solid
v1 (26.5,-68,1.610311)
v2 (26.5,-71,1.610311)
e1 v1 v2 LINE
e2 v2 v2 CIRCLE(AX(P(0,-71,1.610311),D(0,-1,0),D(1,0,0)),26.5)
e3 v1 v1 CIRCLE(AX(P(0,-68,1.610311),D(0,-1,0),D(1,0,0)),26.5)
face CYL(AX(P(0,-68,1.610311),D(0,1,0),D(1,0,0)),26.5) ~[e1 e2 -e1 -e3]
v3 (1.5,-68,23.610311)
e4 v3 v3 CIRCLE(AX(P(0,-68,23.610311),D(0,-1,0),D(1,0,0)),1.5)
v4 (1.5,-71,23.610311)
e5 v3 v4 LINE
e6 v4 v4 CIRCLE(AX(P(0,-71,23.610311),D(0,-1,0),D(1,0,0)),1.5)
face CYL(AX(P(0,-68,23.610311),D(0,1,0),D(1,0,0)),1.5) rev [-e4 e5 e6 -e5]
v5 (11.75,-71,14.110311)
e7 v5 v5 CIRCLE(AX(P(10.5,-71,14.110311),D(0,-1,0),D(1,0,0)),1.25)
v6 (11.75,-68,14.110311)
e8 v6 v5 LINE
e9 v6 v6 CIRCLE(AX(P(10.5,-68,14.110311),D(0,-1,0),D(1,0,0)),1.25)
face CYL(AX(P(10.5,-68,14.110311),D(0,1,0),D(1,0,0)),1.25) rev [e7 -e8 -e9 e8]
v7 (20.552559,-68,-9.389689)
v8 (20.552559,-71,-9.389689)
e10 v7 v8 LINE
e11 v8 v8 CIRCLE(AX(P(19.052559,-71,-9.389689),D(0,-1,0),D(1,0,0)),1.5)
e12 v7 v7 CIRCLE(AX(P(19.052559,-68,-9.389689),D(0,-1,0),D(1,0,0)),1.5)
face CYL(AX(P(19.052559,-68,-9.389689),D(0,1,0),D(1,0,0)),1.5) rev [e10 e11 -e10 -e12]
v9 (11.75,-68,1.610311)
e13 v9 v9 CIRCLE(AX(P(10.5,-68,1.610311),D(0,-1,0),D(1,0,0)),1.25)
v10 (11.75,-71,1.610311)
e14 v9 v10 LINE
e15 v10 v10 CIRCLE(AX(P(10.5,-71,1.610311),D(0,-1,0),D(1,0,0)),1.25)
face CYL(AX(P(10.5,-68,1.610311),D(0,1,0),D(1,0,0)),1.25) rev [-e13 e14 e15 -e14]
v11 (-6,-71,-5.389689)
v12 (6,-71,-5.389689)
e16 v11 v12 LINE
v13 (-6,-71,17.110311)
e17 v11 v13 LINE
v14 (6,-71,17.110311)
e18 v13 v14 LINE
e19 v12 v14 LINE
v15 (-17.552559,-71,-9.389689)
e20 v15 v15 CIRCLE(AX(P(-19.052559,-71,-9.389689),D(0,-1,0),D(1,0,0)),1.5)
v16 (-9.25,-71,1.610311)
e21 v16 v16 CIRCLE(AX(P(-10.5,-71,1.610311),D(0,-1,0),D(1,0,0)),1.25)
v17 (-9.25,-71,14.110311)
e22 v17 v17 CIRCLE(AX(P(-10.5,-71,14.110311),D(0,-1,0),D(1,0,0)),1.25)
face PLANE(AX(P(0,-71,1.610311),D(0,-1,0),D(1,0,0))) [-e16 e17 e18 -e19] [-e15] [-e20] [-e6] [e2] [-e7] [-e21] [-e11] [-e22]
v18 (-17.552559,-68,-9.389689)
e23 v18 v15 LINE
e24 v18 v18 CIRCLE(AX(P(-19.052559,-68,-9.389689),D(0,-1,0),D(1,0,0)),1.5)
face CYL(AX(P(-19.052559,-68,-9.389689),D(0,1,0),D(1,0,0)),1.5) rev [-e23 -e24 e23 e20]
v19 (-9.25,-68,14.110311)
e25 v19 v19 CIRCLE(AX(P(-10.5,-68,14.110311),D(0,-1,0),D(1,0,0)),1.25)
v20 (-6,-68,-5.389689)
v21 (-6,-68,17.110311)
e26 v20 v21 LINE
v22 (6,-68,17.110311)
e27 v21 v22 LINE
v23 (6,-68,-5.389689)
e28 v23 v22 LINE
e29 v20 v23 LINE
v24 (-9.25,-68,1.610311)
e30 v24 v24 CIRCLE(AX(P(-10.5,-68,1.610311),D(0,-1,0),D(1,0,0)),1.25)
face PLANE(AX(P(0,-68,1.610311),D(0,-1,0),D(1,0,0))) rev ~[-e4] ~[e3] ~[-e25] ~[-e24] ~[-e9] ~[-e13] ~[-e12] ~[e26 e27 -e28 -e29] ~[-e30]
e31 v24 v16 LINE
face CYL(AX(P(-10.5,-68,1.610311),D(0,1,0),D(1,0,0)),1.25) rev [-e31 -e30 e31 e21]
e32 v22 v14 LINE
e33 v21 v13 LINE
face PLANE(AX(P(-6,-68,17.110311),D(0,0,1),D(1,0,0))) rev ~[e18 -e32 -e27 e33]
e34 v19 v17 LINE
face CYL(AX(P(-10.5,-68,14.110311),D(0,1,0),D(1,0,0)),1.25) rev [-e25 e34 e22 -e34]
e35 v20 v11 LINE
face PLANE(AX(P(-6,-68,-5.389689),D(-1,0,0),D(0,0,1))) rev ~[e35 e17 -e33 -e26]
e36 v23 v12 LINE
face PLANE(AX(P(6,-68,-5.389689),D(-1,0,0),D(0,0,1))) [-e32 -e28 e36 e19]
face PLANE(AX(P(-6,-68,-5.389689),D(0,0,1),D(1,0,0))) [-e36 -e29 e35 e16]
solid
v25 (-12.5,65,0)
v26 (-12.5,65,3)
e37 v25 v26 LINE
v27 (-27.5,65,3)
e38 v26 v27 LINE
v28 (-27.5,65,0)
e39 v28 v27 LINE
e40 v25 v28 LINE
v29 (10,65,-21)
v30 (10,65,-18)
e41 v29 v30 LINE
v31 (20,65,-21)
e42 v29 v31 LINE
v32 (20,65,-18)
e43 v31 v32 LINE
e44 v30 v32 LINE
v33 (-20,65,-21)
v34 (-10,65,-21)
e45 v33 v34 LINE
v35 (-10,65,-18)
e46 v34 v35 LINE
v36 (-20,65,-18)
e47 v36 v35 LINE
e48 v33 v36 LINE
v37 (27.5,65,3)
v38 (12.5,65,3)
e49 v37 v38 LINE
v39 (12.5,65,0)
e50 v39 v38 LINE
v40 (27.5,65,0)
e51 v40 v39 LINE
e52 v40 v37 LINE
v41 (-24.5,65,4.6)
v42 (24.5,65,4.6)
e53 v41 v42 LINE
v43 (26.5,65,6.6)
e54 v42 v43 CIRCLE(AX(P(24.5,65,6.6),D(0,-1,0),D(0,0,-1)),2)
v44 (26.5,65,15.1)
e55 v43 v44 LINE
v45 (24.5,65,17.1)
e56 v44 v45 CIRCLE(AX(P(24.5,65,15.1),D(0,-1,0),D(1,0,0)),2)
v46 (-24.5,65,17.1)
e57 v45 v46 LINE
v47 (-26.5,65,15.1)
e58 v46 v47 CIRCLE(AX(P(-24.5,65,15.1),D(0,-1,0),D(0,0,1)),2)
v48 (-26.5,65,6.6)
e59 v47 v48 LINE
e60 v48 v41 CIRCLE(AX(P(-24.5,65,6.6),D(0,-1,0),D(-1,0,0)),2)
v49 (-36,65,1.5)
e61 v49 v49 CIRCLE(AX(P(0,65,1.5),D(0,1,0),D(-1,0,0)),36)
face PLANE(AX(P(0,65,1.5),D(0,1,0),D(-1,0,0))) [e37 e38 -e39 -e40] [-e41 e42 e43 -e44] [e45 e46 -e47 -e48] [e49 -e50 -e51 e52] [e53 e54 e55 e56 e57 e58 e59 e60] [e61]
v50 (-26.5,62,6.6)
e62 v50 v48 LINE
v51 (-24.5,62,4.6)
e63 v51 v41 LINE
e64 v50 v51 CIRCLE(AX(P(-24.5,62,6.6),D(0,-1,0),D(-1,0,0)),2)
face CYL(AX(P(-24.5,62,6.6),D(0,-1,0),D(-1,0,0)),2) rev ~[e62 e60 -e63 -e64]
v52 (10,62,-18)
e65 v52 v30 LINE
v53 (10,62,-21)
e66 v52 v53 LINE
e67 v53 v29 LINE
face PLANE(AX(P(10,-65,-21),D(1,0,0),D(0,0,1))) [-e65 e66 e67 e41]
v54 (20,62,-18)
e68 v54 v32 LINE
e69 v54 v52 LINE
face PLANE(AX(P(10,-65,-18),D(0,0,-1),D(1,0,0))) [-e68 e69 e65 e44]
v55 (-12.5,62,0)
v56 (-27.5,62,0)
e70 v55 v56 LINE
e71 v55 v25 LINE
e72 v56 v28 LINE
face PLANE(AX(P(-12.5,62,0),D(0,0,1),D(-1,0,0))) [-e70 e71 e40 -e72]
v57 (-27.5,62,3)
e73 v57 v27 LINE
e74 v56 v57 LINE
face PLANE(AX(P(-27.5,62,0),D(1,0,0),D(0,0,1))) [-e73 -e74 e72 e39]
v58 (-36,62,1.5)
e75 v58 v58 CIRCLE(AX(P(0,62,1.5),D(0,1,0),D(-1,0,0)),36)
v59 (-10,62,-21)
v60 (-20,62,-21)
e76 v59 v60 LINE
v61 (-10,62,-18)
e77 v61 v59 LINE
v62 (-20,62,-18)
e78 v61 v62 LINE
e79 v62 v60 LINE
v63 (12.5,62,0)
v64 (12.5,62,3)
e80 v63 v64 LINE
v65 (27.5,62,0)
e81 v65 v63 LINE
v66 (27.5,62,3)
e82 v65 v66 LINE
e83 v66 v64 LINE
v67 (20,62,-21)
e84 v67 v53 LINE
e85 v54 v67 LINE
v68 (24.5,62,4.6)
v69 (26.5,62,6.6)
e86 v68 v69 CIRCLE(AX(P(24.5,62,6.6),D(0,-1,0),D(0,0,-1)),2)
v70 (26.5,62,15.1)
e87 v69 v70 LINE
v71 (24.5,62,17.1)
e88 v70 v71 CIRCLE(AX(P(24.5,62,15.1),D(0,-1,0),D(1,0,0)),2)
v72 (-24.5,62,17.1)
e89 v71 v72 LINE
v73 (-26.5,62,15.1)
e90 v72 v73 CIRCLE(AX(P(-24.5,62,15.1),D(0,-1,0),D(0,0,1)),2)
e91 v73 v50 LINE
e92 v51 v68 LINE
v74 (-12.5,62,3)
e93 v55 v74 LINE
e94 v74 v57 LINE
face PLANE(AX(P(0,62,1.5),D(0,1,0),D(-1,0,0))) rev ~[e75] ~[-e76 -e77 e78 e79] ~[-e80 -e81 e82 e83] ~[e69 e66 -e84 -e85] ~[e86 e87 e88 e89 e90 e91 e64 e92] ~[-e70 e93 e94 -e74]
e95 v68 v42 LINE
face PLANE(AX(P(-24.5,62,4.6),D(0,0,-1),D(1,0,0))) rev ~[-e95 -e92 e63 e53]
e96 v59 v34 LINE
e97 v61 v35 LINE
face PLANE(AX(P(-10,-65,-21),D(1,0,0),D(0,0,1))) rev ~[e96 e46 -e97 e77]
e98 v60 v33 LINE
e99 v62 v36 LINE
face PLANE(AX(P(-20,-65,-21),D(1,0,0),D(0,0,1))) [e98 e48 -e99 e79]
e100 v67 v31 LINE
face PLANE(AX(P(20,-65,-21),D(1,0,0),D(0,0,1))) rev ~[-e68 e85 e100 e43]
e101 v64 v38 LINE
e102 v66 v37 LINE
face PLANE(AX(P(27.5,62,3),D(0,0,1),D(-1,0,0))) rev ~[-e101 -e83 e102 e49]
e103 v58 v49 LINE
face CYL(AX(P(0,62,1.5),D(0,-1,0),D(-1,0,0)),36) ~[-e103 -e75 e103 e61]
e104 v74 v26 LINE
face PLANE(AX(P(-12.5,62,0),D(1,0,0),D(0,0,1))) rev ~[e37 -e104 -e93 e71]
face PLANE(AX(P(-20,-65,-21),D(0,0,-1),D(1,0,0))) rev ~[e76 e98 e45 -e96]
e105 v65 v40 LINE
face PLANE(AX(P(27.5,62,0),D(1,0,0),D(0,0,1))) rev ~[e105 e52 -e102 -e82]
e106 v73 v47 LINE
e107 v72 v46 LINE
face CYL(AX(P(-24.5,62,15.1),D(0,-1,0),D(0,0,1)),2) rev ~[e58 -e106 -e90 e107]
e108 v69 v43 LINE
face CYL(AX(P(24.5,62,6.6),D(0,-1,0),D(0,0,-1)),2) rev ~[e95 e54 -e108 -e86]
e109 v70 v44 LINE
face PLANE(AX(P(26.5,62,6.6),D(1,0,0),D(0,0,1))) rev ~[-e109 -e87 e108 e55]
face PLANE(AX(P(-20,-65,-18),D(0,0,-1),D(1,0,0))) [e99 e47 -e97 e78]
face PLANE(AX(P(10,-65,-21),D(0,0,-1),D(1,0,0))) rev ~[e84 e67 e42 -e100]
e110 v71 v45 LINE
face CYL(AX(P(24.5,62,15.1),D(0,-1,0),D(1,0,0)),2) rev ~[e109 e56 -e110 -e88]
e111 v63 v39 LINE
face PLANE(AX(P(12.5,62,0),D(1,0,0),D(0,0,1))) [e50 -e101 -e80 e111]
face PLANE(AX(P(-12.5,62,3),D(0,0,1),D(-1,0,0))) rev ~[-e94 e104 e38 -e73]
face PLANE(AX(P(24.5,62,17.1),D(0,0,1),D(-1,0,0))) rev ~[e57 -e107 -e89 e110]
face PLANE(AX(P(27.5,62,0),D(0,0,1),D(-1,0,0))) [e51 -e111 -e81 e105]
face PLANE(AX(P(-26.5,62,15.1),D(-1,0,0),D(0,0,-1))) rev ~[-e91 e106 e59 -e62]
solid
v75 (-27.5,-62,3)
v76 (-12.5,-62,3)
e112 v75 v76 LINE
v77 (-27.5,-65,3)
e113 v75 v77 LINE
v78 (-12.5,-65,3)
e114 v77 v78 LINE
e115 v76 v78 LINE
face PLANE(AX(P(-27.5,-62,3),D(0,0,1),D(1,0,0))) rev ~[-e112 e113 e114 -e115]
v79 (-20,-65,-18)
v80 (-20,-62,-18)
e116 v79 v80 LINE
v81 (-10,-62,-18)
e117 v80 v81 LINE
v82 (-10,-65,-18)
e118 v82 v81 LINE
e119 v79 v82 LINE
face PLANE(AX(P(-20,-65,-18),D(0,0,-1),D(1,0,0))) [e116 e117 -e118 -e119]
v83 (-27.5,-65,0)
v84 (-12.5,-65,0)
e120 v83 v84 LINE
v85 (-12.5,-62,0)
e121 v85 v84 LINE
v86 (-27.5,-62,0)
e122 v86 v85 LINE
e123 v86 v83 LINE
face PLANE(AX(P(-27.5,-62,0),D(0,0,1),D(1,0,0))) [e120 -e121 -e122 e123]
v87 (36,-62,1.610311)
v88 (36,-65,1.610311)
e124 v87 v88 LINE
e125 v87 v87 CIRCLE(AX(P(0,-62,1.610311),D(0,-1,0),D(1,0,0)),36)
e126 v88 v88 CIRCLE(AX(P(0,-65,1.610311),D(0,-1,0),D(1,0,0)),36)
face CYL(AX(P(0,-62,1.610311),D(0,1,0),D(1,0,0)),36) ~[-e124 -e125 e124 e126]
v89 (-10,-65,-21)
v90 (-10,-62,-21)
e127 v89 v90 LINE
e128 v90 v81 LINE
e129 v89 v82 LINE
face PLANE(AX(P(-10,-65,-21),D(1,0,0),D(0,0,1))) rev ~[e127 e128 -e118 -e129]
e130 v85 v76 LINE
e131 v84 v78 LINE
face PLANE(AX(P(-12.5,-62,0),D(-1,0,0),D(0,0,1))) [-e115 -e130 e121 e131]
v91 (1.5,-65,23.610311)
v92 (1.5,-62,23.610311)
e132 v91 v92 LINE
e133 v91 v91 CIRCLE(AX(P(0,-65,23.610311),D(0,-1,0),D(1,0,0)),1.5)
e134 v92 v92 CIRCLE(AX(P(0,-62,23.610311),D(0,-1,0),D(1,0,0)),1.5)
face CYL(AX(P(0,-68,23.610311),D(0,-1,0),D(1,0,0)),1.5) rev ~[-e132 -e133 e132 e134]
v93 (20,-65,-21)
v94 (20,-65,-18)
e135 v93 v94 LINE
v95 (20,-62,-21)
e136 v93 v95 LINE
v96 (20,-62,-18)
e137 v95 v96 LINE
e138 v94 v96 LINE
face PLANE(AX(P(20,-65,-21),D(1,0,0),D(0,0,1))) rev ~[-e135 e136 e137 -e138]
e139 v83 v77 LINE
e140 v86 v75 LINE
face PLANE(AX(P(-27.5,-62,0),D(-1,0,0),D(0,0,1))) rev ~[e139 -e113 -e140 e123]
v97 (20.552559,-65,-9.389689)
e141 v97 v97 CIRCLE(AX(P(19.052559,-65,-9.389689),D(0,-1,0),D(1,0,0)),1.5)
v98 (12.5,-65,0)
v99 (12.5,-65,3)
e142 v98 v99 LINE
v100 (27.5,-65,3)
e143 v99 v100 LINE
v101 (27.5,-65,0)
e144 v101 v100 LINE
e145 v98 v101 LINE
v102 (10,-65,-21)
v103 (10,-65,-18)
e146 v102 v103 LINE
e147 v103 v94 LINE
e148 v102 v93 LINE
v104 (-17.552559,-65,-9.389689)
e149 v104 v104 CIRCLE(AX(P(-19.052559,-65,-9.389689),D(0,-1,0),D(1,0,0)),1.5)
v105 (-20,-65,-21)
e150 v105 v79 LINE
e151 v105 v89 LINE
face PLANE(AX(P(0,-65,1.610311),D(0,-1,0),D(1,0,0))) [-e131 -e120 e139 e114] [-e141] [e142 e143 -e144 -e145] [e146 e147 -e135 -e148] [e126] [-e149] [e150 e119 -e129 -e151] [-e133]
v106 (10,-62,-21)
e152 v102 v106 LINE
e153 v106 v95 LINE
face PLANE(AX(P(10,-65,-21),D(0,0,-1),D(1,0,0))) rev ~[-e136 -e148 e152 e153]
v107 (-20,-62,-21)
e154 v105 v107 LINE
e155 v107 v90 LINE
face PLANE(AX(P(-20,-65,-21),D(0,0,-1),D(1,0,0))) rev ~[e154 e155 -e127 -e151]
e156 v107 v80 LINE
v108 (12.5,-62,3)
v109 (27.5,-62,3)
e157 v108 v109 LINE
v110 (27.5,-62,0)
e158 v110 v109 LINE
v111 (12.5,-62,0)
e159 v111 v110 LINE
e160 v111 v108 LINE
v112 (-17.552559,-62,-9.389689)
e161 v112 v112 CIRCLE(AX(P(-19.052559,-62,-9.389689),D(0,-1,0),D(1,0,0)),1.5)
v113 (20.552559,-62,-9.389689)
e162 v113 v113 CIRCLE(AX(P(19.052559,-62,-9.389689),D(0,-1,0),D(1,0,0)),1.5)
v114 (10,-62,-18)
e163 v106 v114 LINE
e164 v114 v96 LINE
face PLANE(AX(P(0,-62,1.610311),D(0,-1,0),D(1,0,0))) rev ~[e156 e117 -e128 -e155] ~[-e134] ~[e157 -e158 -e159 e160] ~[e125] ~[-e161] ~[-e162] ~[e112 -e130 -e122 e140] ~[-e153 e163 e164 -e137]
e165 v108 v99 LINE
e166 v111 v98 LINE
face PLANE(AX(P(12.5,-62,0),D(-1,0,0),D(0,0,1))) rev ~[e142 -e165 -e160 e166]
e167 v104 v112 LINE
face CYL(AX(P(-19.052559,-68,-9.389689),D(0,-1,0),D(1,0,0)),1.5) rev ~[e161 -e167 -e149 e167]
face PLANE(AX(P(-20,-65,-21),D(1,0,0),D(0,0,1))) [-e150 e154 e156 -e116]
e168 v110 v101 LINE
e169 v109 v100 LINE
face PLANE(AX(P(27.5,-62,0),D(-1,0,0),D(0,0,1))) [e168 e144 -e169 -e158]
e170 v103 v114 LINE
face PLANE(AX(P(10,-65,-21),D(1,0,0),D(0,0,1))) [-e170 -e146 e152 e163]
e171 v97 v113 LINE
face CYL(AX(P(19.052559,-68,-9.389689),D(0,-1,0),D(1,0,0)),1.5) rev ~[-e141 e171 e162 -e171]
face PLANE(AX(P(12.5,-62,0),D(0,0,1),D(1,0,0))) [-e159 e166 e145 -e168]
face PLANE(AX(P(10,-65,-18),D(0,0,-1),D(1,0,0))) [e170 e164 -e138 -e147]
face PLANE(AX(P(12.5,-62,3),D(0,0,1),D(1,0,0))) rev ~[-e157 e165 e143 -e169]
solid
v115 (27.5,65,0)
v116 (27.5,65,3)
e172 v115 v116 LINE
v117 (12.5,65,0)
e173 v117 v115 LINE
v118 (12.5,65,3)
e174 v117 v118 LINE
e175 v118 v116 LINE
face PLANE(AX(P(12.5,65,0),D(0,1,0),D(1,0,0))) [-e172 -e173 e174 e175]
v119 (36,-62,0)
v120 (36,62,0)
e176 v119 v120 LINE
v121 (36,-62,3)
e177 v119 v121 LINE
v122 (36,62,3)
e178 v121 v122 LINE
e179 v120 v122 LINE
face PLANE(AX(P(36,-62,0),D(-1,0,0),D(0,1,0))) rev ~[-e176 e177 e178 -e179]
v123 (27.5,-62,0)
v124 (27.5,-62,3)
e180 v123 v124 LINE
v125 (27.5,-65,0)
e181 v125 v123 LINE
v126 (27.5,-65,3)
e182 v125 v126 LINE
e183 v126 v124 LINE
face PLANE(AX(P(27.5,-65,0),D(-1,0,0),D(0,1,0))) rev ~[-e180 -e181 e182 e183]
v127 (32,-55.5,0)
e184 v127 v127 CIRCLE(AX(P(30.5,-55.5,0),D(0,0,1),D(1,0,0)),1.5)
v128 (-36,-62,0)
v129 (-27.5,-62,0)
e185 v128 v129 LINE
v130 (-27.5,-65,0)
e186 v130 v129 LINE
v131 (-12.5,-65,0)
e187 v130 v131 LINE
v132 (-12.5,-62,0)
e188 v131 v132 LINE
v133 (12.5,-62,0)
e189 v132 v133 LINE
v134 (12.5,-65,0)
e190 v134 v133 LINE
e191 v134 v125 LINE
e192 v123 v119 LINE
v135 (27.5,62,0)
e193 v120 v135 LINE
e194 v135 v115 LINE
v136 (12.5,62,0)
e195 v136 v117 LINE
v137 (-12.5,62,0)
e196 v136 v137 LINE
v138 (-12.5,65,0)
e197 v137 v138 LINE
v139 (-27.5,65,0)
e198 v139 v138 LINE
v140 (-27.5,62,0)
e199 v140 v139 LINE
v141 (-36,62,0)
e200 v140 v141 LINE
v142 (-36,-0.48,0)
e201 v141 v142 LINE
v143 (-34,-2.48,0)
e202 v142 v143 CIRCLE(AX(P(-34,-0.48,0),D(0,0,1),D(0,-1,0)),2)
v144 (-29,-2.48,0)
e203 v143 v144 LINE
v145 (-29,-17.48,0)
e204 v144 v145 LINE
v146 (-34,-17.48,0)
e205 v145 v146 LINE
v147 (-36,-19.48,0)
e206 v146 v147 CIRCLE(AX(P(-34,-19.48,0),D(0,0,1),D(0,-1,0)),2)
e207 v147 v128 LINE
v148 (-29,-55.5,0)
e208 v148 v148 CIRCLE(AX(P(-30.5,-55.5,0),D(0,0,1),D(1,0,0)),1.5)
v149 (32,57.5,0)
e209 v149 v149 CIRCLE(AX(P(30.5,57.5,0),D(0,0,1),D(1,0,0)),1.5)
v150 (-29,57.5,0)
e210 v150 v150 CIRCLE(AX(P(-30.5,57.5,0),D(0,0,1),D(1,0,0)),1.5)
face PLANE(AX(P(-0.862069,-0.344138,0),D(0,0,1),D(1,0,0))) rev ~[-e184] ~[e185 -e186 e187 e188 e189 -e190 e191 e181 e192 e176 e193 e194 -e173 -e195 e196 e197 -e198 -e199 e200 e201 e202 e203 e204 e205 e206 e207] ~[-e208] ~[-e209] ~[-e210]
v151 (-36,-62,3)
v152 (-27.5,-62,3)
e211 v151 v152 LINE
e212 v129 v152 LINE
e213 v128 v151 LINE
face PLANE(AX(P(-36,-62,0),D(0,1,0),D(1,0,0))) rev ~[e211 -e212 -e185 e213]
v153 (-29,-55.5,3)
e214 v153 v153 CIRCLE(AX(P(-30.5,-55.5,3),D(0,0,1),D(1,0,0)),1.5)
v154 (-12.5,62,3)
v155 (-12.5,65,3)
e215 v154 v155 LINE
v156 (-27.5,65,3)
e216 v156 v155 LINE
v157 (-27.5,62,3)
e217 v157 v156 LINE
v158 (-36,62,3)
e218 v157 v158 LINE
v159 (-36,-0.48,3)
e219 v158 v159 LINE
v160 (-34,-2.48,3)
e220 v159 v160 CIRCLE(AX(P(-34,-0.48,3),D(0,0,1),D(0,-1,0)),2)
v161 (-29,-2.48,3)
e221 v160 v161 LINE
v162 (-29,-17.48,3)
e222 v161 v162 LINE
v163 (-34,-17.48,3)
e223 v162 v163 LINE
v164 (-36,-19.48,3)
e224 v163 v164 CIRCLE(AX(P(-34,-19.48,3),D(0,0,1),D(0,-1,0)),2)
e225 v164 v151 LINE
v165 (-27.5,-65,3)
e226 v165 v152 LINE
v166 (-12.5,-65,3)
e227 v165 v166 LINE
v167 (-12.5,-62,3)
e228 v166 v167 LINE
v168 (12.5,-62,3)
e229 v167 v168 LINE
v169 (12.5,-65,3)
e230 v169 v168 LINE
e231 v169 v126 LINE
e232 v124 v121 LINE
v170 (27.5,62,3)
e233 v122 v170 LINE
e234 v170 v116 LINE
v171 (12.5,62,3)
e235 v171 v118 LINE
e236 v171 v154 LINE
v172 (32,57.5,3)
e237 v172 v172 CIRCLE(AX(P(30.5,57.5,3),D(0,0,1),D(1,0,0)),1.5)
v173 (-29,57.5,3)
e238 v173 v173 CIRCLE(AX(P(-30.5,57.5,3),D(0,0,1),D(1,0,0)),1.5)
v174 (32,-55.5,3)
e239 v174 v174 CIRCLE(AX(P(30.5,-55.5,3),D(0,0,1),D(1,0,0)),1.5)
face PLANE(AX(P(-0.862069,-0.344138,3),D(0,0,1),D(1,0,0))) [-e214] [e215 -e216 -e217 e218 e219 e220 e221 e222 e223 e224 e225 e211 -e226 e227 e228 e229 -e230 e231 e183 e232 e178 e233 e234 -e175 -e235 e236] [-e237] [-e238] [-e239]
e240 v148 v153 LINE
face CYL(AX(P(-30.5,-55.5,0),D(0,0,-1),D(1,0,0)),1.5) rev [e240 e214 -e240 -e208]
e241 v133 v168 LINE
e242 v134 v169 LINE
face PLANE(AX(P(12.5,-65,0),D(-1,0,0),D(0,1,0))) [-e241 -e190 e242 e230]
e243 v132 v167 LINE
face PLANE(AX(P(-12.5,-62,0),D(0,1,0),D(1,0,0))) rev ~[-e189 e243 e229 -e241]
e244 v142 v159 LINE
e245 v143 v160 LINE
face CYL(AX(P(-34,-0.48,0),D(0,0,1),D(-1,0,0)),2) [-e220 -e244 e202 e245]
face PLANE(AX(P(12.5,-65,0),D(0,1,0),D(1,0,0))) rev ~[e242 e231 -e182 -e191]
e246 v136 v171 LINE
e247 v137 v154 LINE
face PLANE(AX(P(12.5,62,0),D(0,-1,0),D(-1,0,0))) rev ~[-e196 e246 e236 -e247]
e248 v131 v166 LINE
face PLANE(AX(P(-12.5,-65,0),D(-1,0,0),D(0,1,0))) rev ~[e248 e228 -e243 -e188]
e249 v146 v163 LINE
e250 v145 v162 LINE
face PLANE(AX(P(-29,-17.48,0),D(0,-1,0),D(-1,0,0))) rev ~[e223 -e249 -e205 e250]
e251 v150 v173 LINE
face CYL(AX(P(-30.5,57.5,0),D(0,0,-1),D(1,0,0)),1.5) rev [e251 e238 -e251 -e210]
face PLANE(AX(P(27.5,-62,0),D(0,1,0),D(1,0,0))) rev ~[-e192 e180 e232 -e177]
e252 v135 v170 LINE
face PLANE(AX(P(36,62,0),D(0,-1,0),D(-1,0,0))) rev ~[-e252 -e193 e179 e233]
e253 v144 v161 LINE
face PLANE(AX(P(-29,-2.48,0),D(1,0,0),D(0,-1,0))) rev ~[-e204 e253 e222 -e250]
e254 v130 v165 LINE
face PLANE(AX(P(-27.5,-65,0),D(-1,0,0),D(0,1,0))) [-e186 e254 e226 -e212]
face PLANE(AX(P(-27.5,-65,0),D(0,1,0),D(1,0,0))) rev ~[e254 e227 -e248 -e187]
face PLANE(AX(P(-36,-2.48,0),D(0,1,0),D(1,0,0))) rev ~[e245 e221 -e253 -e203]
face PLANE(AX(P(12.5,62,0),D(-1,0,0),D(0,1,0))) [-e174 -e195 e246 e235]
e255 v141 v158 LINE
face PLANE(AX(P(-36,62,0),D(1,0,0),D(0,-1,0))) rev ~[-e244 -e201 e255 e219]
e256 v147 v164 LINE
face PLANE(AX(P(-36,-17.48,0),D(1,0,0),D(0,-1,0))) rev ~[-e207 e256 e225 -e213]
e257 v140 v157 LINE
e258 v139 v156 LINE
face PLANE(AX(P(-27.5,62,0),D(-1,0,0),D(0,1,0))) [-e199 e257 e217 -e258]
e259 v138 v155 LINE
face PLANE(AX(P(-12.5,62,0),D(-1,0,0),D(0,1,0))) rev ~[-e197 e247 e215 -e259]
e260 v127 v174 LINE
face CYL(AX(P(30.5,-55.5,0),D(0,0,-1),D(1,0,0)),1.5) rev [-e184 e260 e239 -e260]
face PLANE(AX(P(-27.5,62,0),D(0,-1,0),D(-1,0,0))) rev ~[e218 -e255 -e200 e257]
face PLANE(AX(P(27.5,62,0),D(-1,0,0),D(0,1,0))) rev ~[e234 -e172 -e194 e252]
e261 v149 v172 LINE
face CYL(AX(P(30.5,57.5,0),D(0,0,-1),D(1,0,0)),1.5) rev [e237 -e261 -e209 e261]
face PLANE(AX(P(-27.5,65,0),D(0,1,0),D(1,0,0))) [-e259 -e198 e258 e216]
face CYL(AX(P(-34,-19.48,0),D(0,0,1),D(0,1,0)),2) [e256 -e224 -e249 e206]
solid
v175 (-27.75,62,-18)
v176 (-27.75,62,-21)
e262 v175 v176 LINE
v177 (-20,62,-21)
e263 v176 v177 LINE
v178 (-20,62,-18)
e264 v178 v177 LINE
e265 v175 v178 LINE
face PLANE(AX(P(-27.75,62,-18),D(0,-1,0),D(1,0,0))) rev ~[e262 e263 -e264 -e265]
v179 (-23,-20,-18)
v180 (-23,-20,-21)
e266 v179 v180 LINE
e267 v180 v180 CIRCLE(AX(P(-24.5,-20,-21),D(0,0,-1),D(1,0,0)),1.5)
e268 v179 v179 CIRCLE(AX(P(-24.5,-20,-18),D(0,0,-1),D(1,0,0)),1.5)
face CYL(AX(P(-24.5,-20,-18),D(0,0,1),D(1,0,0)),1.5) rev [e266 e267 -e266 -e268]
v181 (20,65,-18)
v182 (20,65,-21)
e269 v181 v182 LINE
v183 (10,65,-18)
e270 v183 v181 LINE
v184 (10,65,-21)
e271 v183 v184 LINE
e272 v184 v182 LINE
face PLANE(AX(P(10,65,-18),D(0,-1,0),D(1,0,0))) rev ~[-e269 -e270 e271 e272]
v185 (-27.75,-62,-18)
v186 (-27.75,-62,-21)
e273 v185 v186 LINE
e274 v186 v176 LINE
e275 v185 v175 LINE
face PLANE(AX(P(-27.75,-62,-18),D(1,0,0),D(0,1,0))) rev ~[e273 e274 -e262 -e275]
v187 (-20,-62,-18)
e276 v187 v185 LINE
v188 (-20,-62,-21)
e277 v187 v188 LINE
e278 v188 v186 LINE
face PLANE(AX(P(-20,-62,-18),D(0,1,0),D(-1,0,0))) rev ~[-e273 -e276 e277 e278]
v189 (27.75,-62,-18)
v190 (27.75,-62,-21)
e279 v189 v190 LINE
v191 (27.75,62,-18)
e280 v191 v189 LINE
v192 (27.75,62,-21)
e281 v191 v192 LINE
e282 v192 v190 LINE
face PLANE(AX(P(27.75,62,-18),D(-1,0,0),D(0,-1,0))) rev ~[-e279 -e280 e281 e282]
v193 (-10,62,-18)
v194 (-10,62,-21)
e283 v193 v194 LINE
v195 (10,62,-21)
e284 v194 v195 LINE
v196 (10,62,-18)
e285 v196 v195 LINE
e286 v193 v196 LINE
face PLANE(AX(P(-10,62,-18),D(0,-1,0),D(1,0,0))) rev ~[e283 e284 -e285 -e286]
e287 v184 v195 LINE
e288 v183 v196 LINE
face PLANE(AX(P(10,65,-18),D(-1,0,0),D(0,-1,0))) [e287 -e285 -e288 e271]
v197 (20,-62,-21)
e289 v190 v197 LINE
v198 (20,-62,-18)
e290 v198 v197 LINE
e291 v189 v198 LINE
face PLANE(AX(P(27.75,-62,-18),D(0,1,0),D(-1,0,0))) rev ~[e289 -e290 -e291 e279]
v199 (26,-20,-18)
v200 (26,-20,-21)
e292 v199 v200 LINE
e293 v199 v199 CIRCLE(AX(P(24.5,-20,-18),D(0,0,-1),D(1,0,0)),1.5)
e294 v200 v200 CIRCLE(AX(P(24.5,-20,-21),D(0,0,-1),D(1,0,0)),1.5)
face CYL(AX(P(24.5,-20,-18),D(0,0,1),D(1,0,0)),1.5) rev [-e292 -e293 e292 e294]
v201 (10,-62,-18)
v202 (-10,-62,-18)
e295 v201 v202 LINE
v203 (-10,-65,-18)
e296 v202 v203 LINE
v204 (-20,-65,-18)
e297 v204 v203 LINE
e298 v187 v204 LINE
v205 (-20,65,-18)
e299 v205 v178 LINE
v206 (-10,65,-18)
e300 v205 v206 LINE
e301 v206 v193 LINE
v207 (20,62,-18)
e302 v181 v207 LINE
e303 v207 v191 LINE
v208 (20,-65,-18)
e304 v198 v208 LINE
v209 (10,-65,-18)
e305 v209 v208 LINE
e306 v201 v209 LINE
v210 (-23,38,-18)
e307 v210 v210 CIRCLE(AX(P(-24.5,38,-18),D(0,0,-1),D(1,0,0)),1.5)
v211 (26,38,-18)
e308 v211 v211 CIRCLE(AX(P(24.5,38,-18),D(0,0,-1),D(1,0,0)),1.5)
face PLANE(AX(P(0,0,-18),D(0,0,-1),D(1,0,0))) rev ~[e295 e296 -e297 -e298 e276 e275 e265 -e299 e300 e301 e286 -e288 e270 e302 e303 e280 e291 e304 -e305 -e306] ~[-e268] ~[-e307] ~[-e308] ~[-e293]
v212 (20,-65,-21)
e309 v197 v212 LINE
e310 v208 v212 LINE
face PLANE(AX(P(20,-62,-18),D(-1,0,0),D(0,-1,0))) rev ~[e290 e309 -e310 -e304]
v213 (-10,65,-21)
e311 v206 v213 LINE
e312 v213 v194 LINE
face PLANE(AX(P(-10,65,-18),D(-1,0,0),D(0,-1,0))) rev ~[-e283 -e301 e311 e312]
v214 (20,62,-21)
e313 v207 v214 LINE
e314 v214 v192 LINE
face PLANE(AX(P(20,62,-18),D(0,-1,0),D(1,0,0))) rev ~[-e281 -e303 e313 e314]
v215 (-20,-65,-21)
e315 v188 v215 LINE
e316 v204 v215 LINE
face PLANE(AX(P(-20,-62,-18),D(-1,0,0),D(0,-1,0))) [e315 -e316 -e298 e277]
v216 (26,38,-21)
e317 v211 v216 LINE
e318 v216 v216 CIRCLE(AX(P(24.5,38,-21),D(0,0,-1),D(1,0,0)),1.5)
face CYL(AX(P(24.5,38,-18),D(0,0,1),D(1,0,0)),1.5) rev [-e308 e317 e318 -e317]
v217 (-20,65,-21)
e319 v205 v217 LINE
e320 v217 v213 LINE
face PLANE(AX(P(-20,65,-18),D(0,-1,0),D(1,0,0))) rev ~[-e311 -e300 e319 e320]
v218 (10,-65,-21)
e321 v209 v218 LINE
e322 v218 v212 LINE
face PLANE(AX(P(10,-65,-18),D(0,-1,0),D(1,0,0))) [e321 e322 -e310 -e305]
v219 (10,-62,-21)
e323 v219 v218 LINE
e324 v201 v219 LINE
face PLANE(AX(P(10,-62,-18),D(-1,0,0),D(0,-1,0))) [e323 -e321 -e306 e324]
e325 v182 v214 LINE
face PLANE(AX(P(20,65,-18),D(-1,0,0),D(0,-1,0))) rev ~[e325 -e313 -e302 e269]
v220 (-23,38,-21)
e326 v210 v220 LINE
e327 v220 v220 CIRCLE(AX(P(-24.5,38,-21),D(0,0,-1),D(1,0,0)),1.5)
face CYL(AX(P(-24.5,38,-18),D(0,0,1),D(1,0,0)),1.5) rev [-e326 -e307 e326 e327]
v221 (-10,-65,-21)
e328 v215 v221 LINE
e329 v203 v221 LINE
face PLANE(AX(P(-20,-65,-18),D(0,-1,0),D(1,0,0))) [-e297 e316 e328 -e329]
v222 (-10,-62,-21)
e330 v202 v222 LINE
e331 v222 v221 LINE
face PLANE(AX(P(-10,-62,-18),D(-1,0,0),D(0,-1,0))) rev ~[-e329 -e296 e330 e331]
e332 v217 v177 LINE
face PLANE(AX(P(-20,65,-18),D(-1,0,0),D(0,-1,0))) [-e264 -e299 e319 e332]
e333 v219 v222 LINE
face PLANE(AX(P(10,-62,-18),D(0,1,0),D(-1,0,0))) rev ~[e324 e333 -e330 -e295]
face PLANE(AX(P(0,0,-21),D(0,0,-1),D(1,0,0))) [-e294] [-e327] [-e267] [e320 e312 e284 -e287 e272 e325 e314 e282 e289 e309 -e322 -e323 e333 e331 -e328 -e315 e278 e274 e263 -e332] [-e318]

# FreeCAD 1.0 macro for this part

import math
import FreeCAD as App
import Part
import Sketcher

V = App.Vector


def edges_at(feature, points):
    """Names of the edges that pass closest to the given points."""
    edges = feature.Shape.Edges
    near = lambda p: min(range(len(edges)), key=lambda i: edges[i].distToShape(Part.Vertex(*p))[0])
    return sorted({f"Edge{near(p) + 1}" for p in points})


def add_polygon(sketch, points):
    """Adds a closed chain of lines whose ends are joined by coincident constraints."""
    first, n = sketch.GeometryCount, len(points)
    for a, b in zip(points, points[1:] + points[:1]):
        sketch.addGeometry(Part.LineSegment(App.Vector(*a, 0), App.Vector(*b, 0)), False)
    for i in range(n):
        sketch.addConstraint(Sketcher.Constraint("Coincident", first + i, 2, first + (i + 1) % n, 1))

doc = App.newDocument("Part")
params = doc.addObject("Spreadsheet::Sheet", "Params")
for row, (alias, value) in enumerate([
    ("sketch1_diameter", "3 mm"),
    ("sketch1_width", "7 mm"),
    ("sketch1_width2", "15 mm"),
    ("sketch1_width3", "25 mm"),
    ("sketch1_height", "3 mm"),
    ("pad1_length", "3 mm"),
    ("fillet_radius", "2 mm"),
    ("sketch2_diameter", "72 mm"),
    ("sketch2_width", "15 mm"),
    ("sketch2_height", "3 mm"),
    ("pad2_length", "3 mm"),
    ("sketch3_diameter", "72 mm"),
    ("sketch3_radius", "2 mm"),
    ("sketch3_width", "15 mm"),
    ("sketch3_width2", "49 mm"),
    ("sketch3_height", "3 mm"),
    ("pad3_length", "3 mm"),
    ("sketch4_diameter", "3 mm"),
    ("sketch4_width", "10 mm"),
    ("sketch4_width2", "20 mm"),
    ("sketch4_height", "124 mm"),
    ("sketch4_height2", "3 mm"),
    ("pad4_length", "3 mm"),
    ("sketch5_width", "10 mm"),
    ("sketch5_height", "3 mm"),
    ("pad5_length", "130 mm"),
    ("sketch6_diameter", "3 mm"),
    ("pocket1_length", "25 mm"),
    ("sketch7_diameter", "53 mm"),
    ("sketch7_diameter2", "3 mm"),
    ("sketch7_diameter3", "2.5 mm"),
    ("sketch7_width", "12 mm"),
    ("sketch7_height", "22.5 mm"),
    ("pad6_length", "3 mm"),
], start=1):
    params.set(f"A{row}", alias)
    params.set(f"B{row}", "=" + value)
    params.setAlias(f"B{row}", alias)

body = doc.addObject("PartDesign::Body", "Body")

# Sketch on XY plane
sketch1 = body.newObject("Sketcher::SketchObject", "Sketch")
sketch1.AttachmentSupport = (doc.getObject("XY_Plane"), [""])
sketch1.MapMode = "FlatFace"
add_polygon(sketch1, [(-36, 62), (-36, -2.5), (-29, -2.5), (-29, -17.5), (-36, -17.5), (-36, -62), (-27.5, -62), (-27.5, -65), (-12.5, -65), (-12.5, -62), (12.5, -62), (12.5, -65), (27.5, -65), (27.5, -62), (36, -62), (36, 62), (27.5, 62), (27.5, 65), (12.5, 65), (12.5, 62), (-12.5, 62), (-12.5, 65), (-27.5, 65), (-27.5, 62)])  # lines 0-23
sketch1.addGeometry(Part.Circle(V(-30.5, -55.5, 0), V(0, 0, 1), 1.5), False)  # 24
sketch1.addGeometry(Part.Circle(V(30.5, -55.5, 0), V(0, 0, 1), 1.5), False)  # 25
sketch1.addGeometry(Part.Circle(V(-30.5, 57.5, 0), V(0, 0, 1), 1.5), False)  # 26
sketch1.addGeometry(Part.Circle(V(30.5, 57.5, 0), V(0, 0, 1), 1.5), False)  # 27
sketch1.addConstraint(Sketcher.Constraint("Vertical", 0))
sketch1.addConstraint(Sketcher.Constraint("Horizontal", 1))
sketch1.addConstraint(Sketcher.Constraint("Vertical", 2))
sketch1.addConstraint(Sketcher.Constraint("Horizontal", 3))
sketch1.addConstraint(Sketcher.Constraint("Vertical", 4))
sketch1.addConstraint(Sketcher.Constraint("Horizontal", 5))
sketch1.addConstraint(Sketcher.Constraint("Vertical", 6))
sketch1.addConstraint(Sketcher.Constraint("Horizontal", 7))
sketch1.addConstraint(Sketcher.Constraint("Vertical", 8))
sketch1.addConstraint(Sketcher.Constraint("Horizontal", 9))
sketch1.addConstraint(Sketcher.Constraint("Vertical", 10))
sketch1.addConstraint(Sketcher.Constraint("Horizontal", 11))
sketch1.addConstraint(Sketcher.Constraint("Vertical", 12))
sketch1.addConstraint(Sketcher.Constraint("Horizontal", 13))
sketch1.addConstraint(Sketcher.Constraint("Vertical", 14))
sketch1.addConstraint(Sketcher.Constraint("Horizontal", 15))
sketch1.addConstraint(Sketcher.Constraint("Vertical", 16))
sketch1.addConstraint(Sketcher.Constraint("Horizontal", 17))
sketch1.addConstraint(Sketcher.Constraint("Vertical", 18))
sketch1.addConstraint(Sketcher.Constraint("Horizontal", 19))
sketch1.addConstraint(Sketcher.Constraint("Vertical", 20))
sketch1.addConstraint(Sketcher.Constraint("Horizontal", 21))
sketch1.addConstraint(Sketcher.Constraint("Vertical", 22))
sketch1.addConstraint(Sketcher.Constraint("Horizontal", 23))
sketch1.addConstraint(Sketcher.Constraint("Equal", 24, 25))
sketch1.addConstraint(Sketcher.Constraint("Equal", 25, 26))
sketch1.addConstraint(Sketcher.Constraint("Equal", 26, 27))
sketch1.addConstraint(Sketcher.Constraint("Symmetric", 4, 2, 14, 2, -1, 1))
sketch1.addConstraint(Sketcher.Constraint("Symmetric", 6, 2, 16, 2, -1, 1))
sketch1.addConstraint(Sketcher.Constraint("Symmetric", 8, 2, 18, 2, -1, 1))
sketch1.addConstraint(Sketcher.Constraint("Symmetric", 10, 2, 20, 2, -1, 1))
sketch1.addConstraint(Sketcher.Constraint("Symmetric", 12, 2, 22, 2, -1, 1))
sketch1.addConstraint(Sketcher.Constraint("Symmetric", 24, 3, 25, 3, -2))
sketch1.addConstraint(Sketcher.Constraint("Symmetric", 26, 3, 27, 3, -2))
sketch1.addConstraint(Sketcher.Constraint("Symmetric", 7, 2, 10, 2, -2))
sketch1.addConstraint(Sketcher.Constraint("Symmetric", 5, 2, 12, 2, -2))
sketch1.addConstraint(Sketcher.Constraint("Horizontal", 5, 2, 8, 2))
sketch1.addConstraint(Sketcher.Constraint("Vertical", 24, 3, 26, 3))
sketch1.addConstraint(Sketcher.Constraint("Vertical", 0, 2, 3, 2))
sketch1.addConstraint(Sketcher.Constraint("Equal", 21, 2))
sketch1.addConstraint(Sketcher.Constraint("Diameter", 24, 3.0))
sketch1.addConstraint(Sketcher.Constraint("DistanceX", 1, 1, 1, 2, 7.0))
sketch1.addConstraint(Sketcher.Constraint("DistanceX", 7, 1, 7, 2, 15.0))
sketch1.addConstraint(Sketcher.Constraint("DistanceX", 9, 1, 9, 2, 25.0))
sketch1.addConstraint(Sketcher.Constraint("DistanceY", 6, 2, 6, 1, 3.0))
sketch1.addConstraint(Sketcher.Constraint("DistanceY", 14, 1, 14, 2, 124.0))
sketch1.addConstraint(Sketcher.Constraint("DistanceX", 5, 1, 5, 2, 8.5))
sketch1.addConstraint(Sketcher.Constraint("DistanceX", 24, 3, 25, 3, 61.0))
sketch1.addConstraint(Sketcher.Constraint("DistanceY", 24, 3, 26, 3, 113.0))
sketch1.addConstraint(Sketcher.Constraint("DistanceY", 0, 2, 0, 1, 64.48))
sketch1.addConstraint(Sketcher.Constraint("DistanceY", 24, 3, -1, 1, 55.5))
sketch1.setExpression("Constraints[64]", "Params.sketch1_diameter")
sketch1.setExpression("Constraints[65]", "Params.sketch1_width")
sketch1.setExpression("Constraints[66]", "Params.sketch1_width2")
sketch1.setExpression("Constraints[67]", "Params.sketch1_width3")
sketch1.setExpression("Constraints[68]", "Params.sketch1_height")
pad1 = body.newObject("PartDesign::Pad", "Pad")
pad1.Profile = sketch1
pad1.setExpression("Length", "Params.pad1_length")
doc.recompute()

fillet = body.newObject("PartDesign::Fillet", "Fillet")
fillet.Base = (pad1, edges_at(pad1, [(-36, -2.48, 1.5), (-36, -17.48, 1.5)]))
fillet.setExpression("Radius", "Params.fillet_radius")
body2 = doc.addObject("PartDesign::Body", "Body001")

# Sketch on XZ plane
sketch2 = body2.newObject("Sketcher::SketchObject", "Sketch001")
sketch2.AttachmentSupport = (doc.getObject("XZ_Plane001"), [""])
sketch2.MapMode = "FlatFace"
sketch2.AttachmentOffset = App.Placement(V(0, 0, 62), App.Rotation())
sketch2.addGeometry(Part.Circle(V(0, 1.6, 0), V(0, 0, 1), 36), False)  # 0
add_polygon(sketch2, [(-12.5, 0), (-27.5, 0), (-27.5, 3), (-12.5, 3)])  # lines 1-4
add_polygon(sketch2, [(27.5, 0), (12.5, 0), (12.5, 3), (27.5, 3)])  # lines 5-8
sketch2.addConstraint(Sketcher.Constraint("Horizontal", 1))
sketch2.addConstraint(Sketcher.Constraint("Vertical", 2))
sketch2.addConstraint(Sketcher.Constraint("Horizontal", 3))
sketch2.addConstraint(Sketcher.Constraint("Vertical", 4))
sketch2.addConstraint(Sketcher.Constraint("Horizontal", 5))
sketch2.addConstraint(Sketcher.Constraint("Vertical", 6))
sketch2.addConstraint(Sketcher.Constraint("Horizontal", 7))
sketch2.addConstraint(Sketcher.Constraint("Vertical", 8))
sketch2.addConstraint(Sketcher.Constraint("Symmetric", 4, 2, 5, 2, -1, 1))
sketch2.addConstraint(Sketcher.Constraint("Symmetric", 2, 2, 7, 2, -2))
sketch2.addConstraint(Sketcher.Constraint("PointOnObject", 0, 3, -2))
sketch2.addConstraint(Sketcher.Constraint("PointOnObject", 1, 2, -1))
sketch2.addConstraint(Sketcher.Constraint("Diameter", 0, 72.0))
sketch2.addConstraint(Sketcher.Constraint("DistanceX", 1, 2, 1, 1, 15.0))
sketch2.addConstraint(Sketcher.Constraint("DistanceY", 2, 1, 2, 2, 3.0))
sketch2.addConstraint(Sketcher.Constraint("DistanceX", 4, 2, 5, 2, 25.0))
sketch2.addConstraint(Sketcher.Constraint("DistanceY", -1, 1, 0, 3, 1.610311))
sketch2.setExpression("Constraints[20]", "Params.sketch2_diameter")
sketch2.setExpression("Constraints[21]", "Params.sketch2_width")
sketch2.setExpression("Constraints[22]", "Params.sketch2_height")
pad2 = body2.newObject("PartDesign::Pad", "Pad001")
pad2.Profile = sketch2
pad2.setExpression("Length", "Params.pad2_length")
body3 = doc.addObject("PartDesign::Body", "Body002")

# Sketch on XZ plane
sketch3 = body3.newObject("Sketcher::SketchObject", "Sketch002")
sketch3.AttachmentSupport = (doc.getObject("XZ_Plane002"), [""])
sketch3.MapMode = "FlatFace"
sketch3.AttachmentOffset = App.Placement(V(0, 0, -62), App.Rotation())
sketch3.addGeometry(Part.Circle(V(0, 1.5, 0), V(0, 0, 1), 36), False)  # 0
add_polygon(sketch3, [(12.5, 0), (27.5, 0), (27.5, 3), (12.5, 3)])  # lines 1-4
add_polygon(sketch3, [(-27.5, 0), (-12.5, 0), (-12.5, 3), (-27.5, 3)])  # lines 5-8
sketch3.addGeometry(Part.LineSegment(V(26.5, 6.6, 0), V(26.5, 15.1, 0)), False)  # 9
sketch3.addGeometry(Part.ArcOfCircle(Part.Circle(V(24.5, 15.1, 0), V(0, 0, 1), 2), math.radians(0), math.radians(90)), False)  # 10
sketch3.addGeometry(Part.LineSegment(V(24.5, 17.1, 0), V(-24.5, 17.1, 0)), False)  # 11
sketch3.addGeometry(Part.ArcOfCircle(Part.Circle(V(-24.5, 15.1, 0), V(0, 0, 1), 2), math.radians(90), math.radians(180)), False)  # 12
sketch3.addGeometry(Part.LineSegment(V(-26.5, 15.1, 0), V(-26.5, 6.6, 0)), False)  # 13
sketch3.addGeometry(Part.ArcOfCircle(Part.Circle(V(-24.5, 6.6, 0), V(0, 0, 1), 2), math.radians(180), math.radians(270)), False)  # 14
sketch3.addGeometry(Part.LineSegment(V(-24.5, 4.6, 0), V(24.5, 4.6, 0)), False)  # 15
sketch3.addGeometry(Part.ArcOfCircle(Part.Circle(V(24.5, 6.6, 0), V(0, 0, 1), 2), math.radians(-90), math.radians(0)), False)  # 16
sketch3.addConstraint(Sketcher.Constraint("Tangent", 9, 2, 10, 1))
sketch3.addConstraint(Sketcher.Constraint("Tangent", 10, 2, 11, 1))
sketch3.addConstraint(Sketcher.Constraint("Tangent", 11, 2, 12, 1))
sketch3.addConstraint(Sketcher.Constraint("Tangent", 12, 2, 13, 1))
sketch3.addConstraint(Sketcher.Constraint("Tangent", 13, 2, 14, 1))
sketch3.addConstraint(Sketcher.Constraint("Tangent", 14, 2, 15, 1))
sketch3.addConstraint(Sketcher.Constraint("Tangent", 15, 2, 16, 1))
sketch3.addConstraint(Sketcher.Constraint("Tangent", 16, 2, 9, 1))
sketch3.addConstraint(Sketcher.Constraint("Horizontal", 1))
sketch3.addConstraint(Sketcher.Constraint("Vertical", 2))
sketch3.addConstraint(Sketcher.Constraint("Horizontal", 3))
sketch3.addConstraint(Sketcher.Constraint("Vertical", 4))
sketch3.addConstraint(Sketcher.Constraint("Horizontal", 5))
sketch3.addConstraint(Sketcher.Constraint("Vertical", 6))
sketch3.addConstraint(Sketcher.Constraint("Horizontal", 7))
sketch3.addConstraint(Sketcher.Constraint("Vertical", 8))
sketch3.addConstraint(Sketcher.Constraint("Vertical", 9))
sketch3.addConstraint(Sketcher.Constraint("Horizontal", 11))
sketch3.addConstraint(Sketcher.Constraint("Vertical", 13))
sketch3.addConstraint(Sketcher.Constraint("Horizontal", 15))
sketch3.addConstraint(Sketcher.Constraint("Equal", 10, 12))
sketch3.addConstraint(Sketcher.Constraint("Equal", 12, 14))
sketch3.addConstraint(Sketcher.Constraint("Equal", 14, 16))
sketch3.addConstraint(Sketcher.Constraint("Symmetric", 4, 2, 5, 2, -1, 1))
sketch3.addConstraint(Sketcher.Constraint("Symmetric", 2, 2, 7, 2, -2))
sketch3.addConstraint(Sketcher.Constraint("PointOnObject", 0, 3, -2))
sketch3.addConstraint(Sketcher.Constraint("PointOnObject", 1, 2, -1))
sketch3.addConstraint(Sketcher.Constraint("Diameter", 0, 72.0))
sketch3.addConstraint(Sketcher.Constraint("Radius", 10, 2.0))
sketch3.addConstraint(Sketcher.Constraint("DistanceX", 1, 1, 1, 2, 15.0))
sketch3.addConstraint(Sketcher.Constraint("DistanceX", 11, 2, 11, 1, 49.0))
sketch3.addConstraint(Sketcher.Constraint("DistanceY", 2, 1, 2, 2, 3.0))
sketch3.addConstraint(Sketcher.Constraint("DistanceY", 9, 1, 9, 2, 8.5))
sketch3.addConstraint(Sketcher.Constraint("DistanceX", 16, 3, 1, 2, 3.0))
sketch3.addConstraint(Sketcher.Constraint("DistanceX", 14, 3, 5, 2, 12.0))
sketch3.addConstraint(Sketcher.Constraint("DistanceY", -1, 1, 0, 3, 1.5))
sketch3.addConstraint(Sketcher.Constraint("DistanceY", -1, 1, 10, 3, 15.1))
sketch3.setExpression("Constraints[35]", "Params.sketch3_diameter")
sketch3.setExpression("Constraints[36]", "Params.sketch3_radius")
sketch3.setExpression("Constraints[37]", "Params.sketch3_width")
sketch3.setExpression("Constraints[38]", "Params.sketch3_width2")
sketch3.setExpression("Constraints[39]", "Params.sketch3_height")
pad3 = body3.newObject("PartDesign::Pad", "Pad002")
pad3.Profile = sketch3
pad3.setExpression("Length", "Params.pad3_length")
pad3.Reversed = True
body4 = doc.addObject("PartDesign::Body", "Body003")

# Sketch on XY plane
sketch4 = body4.newObject("Sketcher::SketchObject", "Sketch003")
sketch4.AttachmentSupport = (doc.getObject("XY_Plane003"), [""])
sketch4.MapMode = "FlatFace"
sketch4.AttachmentOffset = App.Placement(V(0, 0, -18), App.Rotation())
add_polygon(sketch4, [(-27.8, -62), (-27.8, 62), (-20, 62), (-20, 65), (-10, 65), (-10, 62), (10, 62), (10, 65), (20, 65), (20, 62), (27.8, 62), (27.8, -62), (20, -62), (20, -65), (10, -65), (10, -62), (-10, -62), (-10, -65), (-20, -65), (-20, -62)])  # lines 0-19
sketch4.addGeometry(Part.Circle(V(-24.5, 38, 0), V(0, 0, 1), 1.5), False)  # 20
sketch4.addGeometry(Part.Circle(V(24.5, 38, 0), V(0, 0, 1), 1.5), False)  # 21
sketch4.addGeometry(Part.Circle(V(-24.5, -20, 0), V(0, 0, 1), 1.5), False)  # 22
sketch4.addGeometry(Part.Circle(V(24.5, -20, 0), V(0, 0, 1), 1.5), False)  # 23
sketch4.addConstraint(Sketcher.Constraint("Vertical", 0))
sketch4.addConstraint(Sketcher.Constraint("Horizontal", 1))
sketch4.addConstraint(Sketcher.Constraint("Vertical", 2))
sketch4.addConstraint(Sketcher.Constraint("Horizontal", 3))
sketch4.addConstraint(Sketcher.Constraint("Vertical", 4))
sketch4.addConstraint(Sketcher.Constraint("Horizontal", 5))
sketch4.addConstraint(Sketcher.Constraint("Vertical", 6))
sketch4.addConstraint(Sketcher.Constraint("Horizontal", 7))
sketch4.addConstraint(Sketcher.Constraint("Vertical", 8))
sketch4.addConstraint(Sketcher.Constraint("Horizontal", 9))
sketch4.addConstraint(Sketcher.Constraint("Vertical", 10))
sketch4.addConstraint(Sketcher.Constraint("Horizontal", 11))
sketch4.addConstraint(Sketcher.Constraint("Vertical", 12))
sketch4.addConstraint(Sketcher.Constraint("Horizontal", 13))
sketch4.addConstraint(Sketcher.Constraint("Vertical", 14))
sketch4.addConstraint(Sketcher.Constraint("Horizontal", 15))
sketch4.addConstraint(Sketcher.Constraint("Vertical", 16))
sketch4.addConstraint(Sketcher.Constraint("Horizontal", 17))
sketch4.addConstraint(Sketcher.Constraint("Vertical", 18))
sketch4.addConstraint(Sketcher.Constraint("Horizontal", 19))
sketch4.addConstraint(Sketcher.Constraint("Equal", 20, 21))
sketch4.addConstraint(Sketcher.Constraint("Equal", 21, 22))
sketch4.addConstraint(Sketcher.Constraint("Equal", 22, 23))
sketch4.addConstraint(Sketcher.Constraint("Symmetric", 0, 2, 10, 2, -1, 1))
sketch4.addConstraint(Sketcher.Constraint("Symmetric", 2, 2, 12, 2, -1, 1))
sketch4.addConstraint(Sketcher.Constraint("Symmetric", 4, 2, 14, 2, -1, 1))
sketch4.addConstraint(Sketcher.Constraint("Symmetric", 6, 2, 16, 2, -1, 1))
sketch4.addConstraint(Sketcher.Constraint("Symmetric", 8, 2, 18, 2, -1, 1))
sketch4.addConstraint(Sketcher.Constraint("Symmetric", 20, 3, 21, 3, -2))
sketch4.addConstraint(Sketcher.Constraint("Symmetric", 22, 3, 23, 3, -2))
sketch4.addConstraint(Sketcher.Constraint("Symmetric", 3, 2, 6, 2, -2))
sketch4.addConstraint(Sketcher.Constraint("Symmetric", 1, 2, 8, 2, -2))
sketch4.addConstraint(Sketcher.Constraint("Horizontal", 1, 2, 4, 2))
sketch4.addConstraint(Sketcher.Constraint("Vertical", 20, 3, 22, 3))
sketch4.addConstraint(Sketcher.Constraint("Diameter", 20, 3.0))
sketch4.addConstraint(Sketcher.Constraint("DistanceX", 3, 1, 3, 2, 10.0))
sketch4.addConstraint(Sketcher.Constraint("DistanceX", 5, 1, 5, 2, 20.0))
sketch4.addConstraint(Sketcher.Constraint("DistanceY", 0, 1, 0, 2, 124.0))
sketch4.addConstraint(Sketcher.Constraint("DistanceY", 2, 1, 2, 2, 3.0))
sketch4.addConstraint(Sketcher.Constraint("DistanceY", -1, 1, 20, 3, 38.0))
sketch4.addConstraint(Sketcher.Constraint("DistanceY", 22, 3, -1, 1, 20.0))
sketch4.addConstraint(Sketcher.Constraint("DistanceX", 20, 3, 21, 3, 49.0))
sketch4.addConstraint(Sketcher.Constraint("DistanceX", 1, 1, 1, 2, 7.75))
sketch4.setExpression("Constraints[54]", "Params.sketch4_diameter")
sketch4.setExpression("Constraints[55]", "Params.sketch4_width")
sketch4.setExpression("Constraints[56]", "Params.sketch4_width2")
sketch4.setExpression("Constraints[57]", "Params.sketch4_height")
sketch4.setExpression("Constraints[58]", "Params.sketch4_height2")
pad4 = body4.newObject("PartDesign::Pad", "Pad003")
pad4.Profile = sketch4
pad4.setExpression("Length", "Params.pad4_length")
pad4.Reversed = True
body5 = doc.addObject("PartDesign::Body", "Body004")
body5.AllowCompound = True

# Sketch on XZ plane
sketch5 = body5.newObject("Sketcher::SketchObject", "Sketch004")
sketch5.AttachmentSupport = (doc.getObject("XZ_Plane004"), [""])
sketch5.MapMode = "FlatFace"
sketch5.AttachmentOffset = App.Placement(V(0, 0, 65), App.Rotation())
add_polygon(sketch5, [(-20, -18), (-20, -21), (-10, -21), (-10, -18)])  # lines 0-3
add_polygon(sketch5, [(10, -18), (10, -21), (20, -21), (20, -18)])  # lines 4-7
sketch5.addConstraint(Sketcher.Constraint("Vertical", 0))
sketch5.addConstraint(Sketcher.Constraint("Horizontal", 1))
sketch5.addConstraint(Sketcher.Constraint("Vertical", 2))
sketch5.addConstraint(Sketcher.Constraint("Horizontal", 3))
sketch5.addConstraint(Sketcher.Constraint("Vertical", 4))
sketch5.addConstraint(Sketcher.Constraint("Horizontal", 5))
sketch5.addConstraint(Sketcher.Constraint("Vertical", 6))
sketch5.addConstraint(Sketcher.Constraint("Horizontal", 7))
sketch5.addConstraint(Sketcher.Constraint("Symmetric", 1, 2, 4, 2, -2))
sketch5.addConstraint(Sketcher.Constraint("Symmetric", 3, 2, 6, 2, -2))
sketch5.addConstraint(Sketcher.Constraint("DistanceX", 1, 1, 1, 2, 10.0))
sketch5.addConstraint(Sketcher.Constraint("DistanceY", 0, 2, 0, 1, 3.0))
sketch5.addConstraint(Sketcher.Constraint("DistanceX", 0, 2, -1, 1, 20.0))
sketch5.addConstraint(Sketcher.Constraint("DistanceY", 0, 2, -1, 1, 21.0))
sketch5.setExpression("Constraints[18]", "Params.sketch5_width")
sketch5.setExpression("Constraints[19]", "Params.sketch5_height")
pad5 = body5.newObject("PartDesign::Pad", "Pad004")
pad5.Profile = sketch5
pad5.setExpression("Length", "Params.pad5_length")
pad5.Reversed = True
doc.recompute()

body6 = doc.addObject("PartDesign::Body", "Body005")
body6.BaseFeature = body5
boolean = body2.newObject("PartDesign::Boolean", "Boolean")
boolean.Type = "Cut"
boolean.addObjects([body6])
doc.recompute()

# Sketch on XZ plane
sketch6 = body2.newObject("Sketcher::SketchObject", "Sketch005")
sketch6.AttachmentSupport = (doc.getObject("XZ_Plane001"), [""])
sketch6.MapMode = "FlatFace"
sketch6.AttachmentOffset = App.Placement(V(0, 0, 68), App.Rotation())
sketch6.addGeometry(Part.Circle(V(0, 23.6, 0), V(0, 0, 1), 1.5), False)
sketch6.addGeometry(Part.Circle(V(-19.1, -9.4, 0), V(0, 0, 1), 1.5), False)
sketch6.addGeometry(Part.Circle(V(19.1, -9.4, 0), V(0, 0, 1), 1.5), False)
sketch6.addConstraint(Sketcher.Constraint("Equal", 0, 1))
sketch6.addConstraint(Sketcher.Constraint("Equal", 1, 2))
sketch6.addConstraint(Sketcher.Constraint("Symmetric", 1, 3, 2, 3, -2))
sketch6.addConstraint(Sketcher.Constraint("PointOnObject", 0, 3, -2))
sketch6.addConstraint(Sketcher.Constraint("Diameter", 0, 3.0))
sketch6.addConstraint(Sketcher.Constraint("DistanceY", 1, 3, 0, 3, 33.0))
sketch6.addConstraint(Sketcher.Constraint("DistanceY", -1, 1, 0, 3, 23.610311))
sketch6.addConstraint(Sketcher.Constraint("DistanceX", 1, 3, -1, 1, 19.052559))
sketch6.setExpression("Constraints[4]", "Params.sketch6_diameter")
pocket1 = body2.newObject("PartDesign::Pocket", "Pocket")
pocket1.Profile = sketch6
pocket1.setExpression("Length", "Params.pocket1_length")
doc.recompute()

boolean2 = body3.newObject("PartDesign::Boolean", "Boolean001")
boolean2.Type = "Cut"
boolean2.addObjects([body5])
body7 = doc.addObject("PartDesign::Body", "Body006")

# Sketch on XZ plane
sketch7 = body7.newObject("Sketcher::SketchObject", "Sketch006")
sketch7.AttachmentSupport = (doc.getObject("XZ_Plane006"), [""])
sketch7.MapMode = "FlatFace"
sketch7.AttachmentOffset = App.Placement(V(0, 0, 68), App.Rotation())
sketch7.addGeometry(Part.Circle(V(0, 1.6, 0), V(0, 0, 1), 26.5), False)  # 0
sketch7.addGeometry(Part.Circle(V(-19.1, -9.4, 0), V(0, 0, 1), 1.5), False)  # 1
sketch7.addGeometry(Part.Circle(V(-10.5, 1.6, 0), V(0, 0, 1), 1.2), False)  # 2
sketch7.addGeometry(Part.Circle(V(19.1, -9.4, 0), V(0, 0, 1), 1.5), False)  # 3
add_polygon(sketch7, [(6, -5.4), (-6, -5.4), (-6, 17.1), (6, 17.1)])  # lines 4-7
sketch7.addGeometry(Part.Circle(V(10.5, 1.6, 0), V(0, 0, 1), 1.2), False)  # 8
sketch7.addGeometry(Part.Circle(V(-10.5, 14.1, 0), V(0, 0, 1), 1.2), False)  # 9
sketch7.addGeometry(Part.Circle(V(10.5, 14.1, 0), V(0, 0, 1), 1.2), False)  # 10
sketch7.addGeometry(Part.Circle(V(0, 23.6, 0), V(0, 0, 1), 1.5), False)  # 11
sketch7.addConstraint(Sketcher.Constraint("Horizontal", 4))
sketch7.addConstraint(Sketcher.Constraint("Vertical", 5))
sketch7.addConstraint(Sketcher.Constraint("Horizontal", 6))
sketch7.addConstraint(Sketcher.Constraint("Vertical", 7))
sketch7.addConstraint(Sketcher.Constraint("Equal", 1, 3))
sketch7.addConstraint(Sketcher.Constraint("Equal", 2, 8))
sketch7.addConstraint(Sketcher.Constraint("Equal", 8, 9))
sketch7.addConstraint(Sketcher.Constraint("Equal", 9, 10))
sketch7.addConstraint(Sketcher.Constraint("Equal", 3, 11))
sketch7.addConstraint(Sketcher.Constraint("Symmetric", 1, 3, 3, 3, -2))
sketch7.addConstraint(Sketcher.Constraint("Symmetric", 2, 3, 8, 3, -2))
sketch7.addConstraint(Sketcher.Constraint("Symmetric", 9, 3, 10, 3, -2))
sketch7.addConstraint(Sketcher.Constraint("PointOnObject", 0, 3, -2))
sketch7.addConstraint(Sketcher.Constraint("PointOnObject", 11, 3, -2))
sketch7.addConstraint(Sketcher.Constraint("Horizontal", 0, 3, 2, 3))
sketch7.addConstraint(Sketcher.Constraint("Vertical", 2, 3, 9, 3))
sketch7.addConstraint(Sketcher.Constraint("Diameter", 0, 53.0))
sketch7.addConstraint(Sketcher.Constraint("Diameter", 1, 3.0))
sketch7.addConstraint(Sketcher.Constraint("Diameter", 2, 2.5))
sketch7.addConstraint(Sketcher.Constraint("DistanceX", 4, 2, 4, 1, 12.0))
sketch7.addConstraint(Sketcher.Constraint("DistanceY", 5, 1, 5, 2, 22.5))
sketch7.addConstraint(Sketcher.Constraint("DistanceX", 4, 2, -1, 1, 6.0))
sketch7.addConstraint(Sketcher.Constraint("DistanceY", 1, 3, 0, 3, 11.0))
sketch7.addConstraint(Sketcher.Constraint("DistanceX", 2, 3, 8, 3, 21.0))
sketch7.addConstraint(Sketcher.Constraint("DistanceY", 0, 3, 11, 3, 22.0))
sketch7.addConstraint(Sketcher.Constraint("DistanceY", 4, 2, 2, 3, 7.0))
sketch7.addConstraint(Sketcher.Constraint("DistanceY", 9, 3, 5, 2, 3.0))
sketch7.addConstraint(Sketcher.Constraint("DistanceY", -1, 1, 0, 3, 1.610311))
sketch7.addConstraint(Sketcher.Constraint("DistanceX", 1, 3, -1, 1, 19.052559))
sketch7.setExpression("Constraints[20]", "Params.sketch7_diameter")
sketch7.setExpression("Constraints[21]", "Params.sketch7_diameter2")
sketch7.setExpression("Constraints[22]", "Params.sketch7_diameter3")
sketch7.setExpression("Constraints[23]", "Params.sketch7_width")
sketch7.setExpression("Constraints[24]", "Params.sketch7_height")
pad6 = body7.newObject("PartDesign::Pad", "Pad005")
pad6.Profile = sketch7
pad6.setExpression("Length", "Params.pad6_length")

doc.recompute()
